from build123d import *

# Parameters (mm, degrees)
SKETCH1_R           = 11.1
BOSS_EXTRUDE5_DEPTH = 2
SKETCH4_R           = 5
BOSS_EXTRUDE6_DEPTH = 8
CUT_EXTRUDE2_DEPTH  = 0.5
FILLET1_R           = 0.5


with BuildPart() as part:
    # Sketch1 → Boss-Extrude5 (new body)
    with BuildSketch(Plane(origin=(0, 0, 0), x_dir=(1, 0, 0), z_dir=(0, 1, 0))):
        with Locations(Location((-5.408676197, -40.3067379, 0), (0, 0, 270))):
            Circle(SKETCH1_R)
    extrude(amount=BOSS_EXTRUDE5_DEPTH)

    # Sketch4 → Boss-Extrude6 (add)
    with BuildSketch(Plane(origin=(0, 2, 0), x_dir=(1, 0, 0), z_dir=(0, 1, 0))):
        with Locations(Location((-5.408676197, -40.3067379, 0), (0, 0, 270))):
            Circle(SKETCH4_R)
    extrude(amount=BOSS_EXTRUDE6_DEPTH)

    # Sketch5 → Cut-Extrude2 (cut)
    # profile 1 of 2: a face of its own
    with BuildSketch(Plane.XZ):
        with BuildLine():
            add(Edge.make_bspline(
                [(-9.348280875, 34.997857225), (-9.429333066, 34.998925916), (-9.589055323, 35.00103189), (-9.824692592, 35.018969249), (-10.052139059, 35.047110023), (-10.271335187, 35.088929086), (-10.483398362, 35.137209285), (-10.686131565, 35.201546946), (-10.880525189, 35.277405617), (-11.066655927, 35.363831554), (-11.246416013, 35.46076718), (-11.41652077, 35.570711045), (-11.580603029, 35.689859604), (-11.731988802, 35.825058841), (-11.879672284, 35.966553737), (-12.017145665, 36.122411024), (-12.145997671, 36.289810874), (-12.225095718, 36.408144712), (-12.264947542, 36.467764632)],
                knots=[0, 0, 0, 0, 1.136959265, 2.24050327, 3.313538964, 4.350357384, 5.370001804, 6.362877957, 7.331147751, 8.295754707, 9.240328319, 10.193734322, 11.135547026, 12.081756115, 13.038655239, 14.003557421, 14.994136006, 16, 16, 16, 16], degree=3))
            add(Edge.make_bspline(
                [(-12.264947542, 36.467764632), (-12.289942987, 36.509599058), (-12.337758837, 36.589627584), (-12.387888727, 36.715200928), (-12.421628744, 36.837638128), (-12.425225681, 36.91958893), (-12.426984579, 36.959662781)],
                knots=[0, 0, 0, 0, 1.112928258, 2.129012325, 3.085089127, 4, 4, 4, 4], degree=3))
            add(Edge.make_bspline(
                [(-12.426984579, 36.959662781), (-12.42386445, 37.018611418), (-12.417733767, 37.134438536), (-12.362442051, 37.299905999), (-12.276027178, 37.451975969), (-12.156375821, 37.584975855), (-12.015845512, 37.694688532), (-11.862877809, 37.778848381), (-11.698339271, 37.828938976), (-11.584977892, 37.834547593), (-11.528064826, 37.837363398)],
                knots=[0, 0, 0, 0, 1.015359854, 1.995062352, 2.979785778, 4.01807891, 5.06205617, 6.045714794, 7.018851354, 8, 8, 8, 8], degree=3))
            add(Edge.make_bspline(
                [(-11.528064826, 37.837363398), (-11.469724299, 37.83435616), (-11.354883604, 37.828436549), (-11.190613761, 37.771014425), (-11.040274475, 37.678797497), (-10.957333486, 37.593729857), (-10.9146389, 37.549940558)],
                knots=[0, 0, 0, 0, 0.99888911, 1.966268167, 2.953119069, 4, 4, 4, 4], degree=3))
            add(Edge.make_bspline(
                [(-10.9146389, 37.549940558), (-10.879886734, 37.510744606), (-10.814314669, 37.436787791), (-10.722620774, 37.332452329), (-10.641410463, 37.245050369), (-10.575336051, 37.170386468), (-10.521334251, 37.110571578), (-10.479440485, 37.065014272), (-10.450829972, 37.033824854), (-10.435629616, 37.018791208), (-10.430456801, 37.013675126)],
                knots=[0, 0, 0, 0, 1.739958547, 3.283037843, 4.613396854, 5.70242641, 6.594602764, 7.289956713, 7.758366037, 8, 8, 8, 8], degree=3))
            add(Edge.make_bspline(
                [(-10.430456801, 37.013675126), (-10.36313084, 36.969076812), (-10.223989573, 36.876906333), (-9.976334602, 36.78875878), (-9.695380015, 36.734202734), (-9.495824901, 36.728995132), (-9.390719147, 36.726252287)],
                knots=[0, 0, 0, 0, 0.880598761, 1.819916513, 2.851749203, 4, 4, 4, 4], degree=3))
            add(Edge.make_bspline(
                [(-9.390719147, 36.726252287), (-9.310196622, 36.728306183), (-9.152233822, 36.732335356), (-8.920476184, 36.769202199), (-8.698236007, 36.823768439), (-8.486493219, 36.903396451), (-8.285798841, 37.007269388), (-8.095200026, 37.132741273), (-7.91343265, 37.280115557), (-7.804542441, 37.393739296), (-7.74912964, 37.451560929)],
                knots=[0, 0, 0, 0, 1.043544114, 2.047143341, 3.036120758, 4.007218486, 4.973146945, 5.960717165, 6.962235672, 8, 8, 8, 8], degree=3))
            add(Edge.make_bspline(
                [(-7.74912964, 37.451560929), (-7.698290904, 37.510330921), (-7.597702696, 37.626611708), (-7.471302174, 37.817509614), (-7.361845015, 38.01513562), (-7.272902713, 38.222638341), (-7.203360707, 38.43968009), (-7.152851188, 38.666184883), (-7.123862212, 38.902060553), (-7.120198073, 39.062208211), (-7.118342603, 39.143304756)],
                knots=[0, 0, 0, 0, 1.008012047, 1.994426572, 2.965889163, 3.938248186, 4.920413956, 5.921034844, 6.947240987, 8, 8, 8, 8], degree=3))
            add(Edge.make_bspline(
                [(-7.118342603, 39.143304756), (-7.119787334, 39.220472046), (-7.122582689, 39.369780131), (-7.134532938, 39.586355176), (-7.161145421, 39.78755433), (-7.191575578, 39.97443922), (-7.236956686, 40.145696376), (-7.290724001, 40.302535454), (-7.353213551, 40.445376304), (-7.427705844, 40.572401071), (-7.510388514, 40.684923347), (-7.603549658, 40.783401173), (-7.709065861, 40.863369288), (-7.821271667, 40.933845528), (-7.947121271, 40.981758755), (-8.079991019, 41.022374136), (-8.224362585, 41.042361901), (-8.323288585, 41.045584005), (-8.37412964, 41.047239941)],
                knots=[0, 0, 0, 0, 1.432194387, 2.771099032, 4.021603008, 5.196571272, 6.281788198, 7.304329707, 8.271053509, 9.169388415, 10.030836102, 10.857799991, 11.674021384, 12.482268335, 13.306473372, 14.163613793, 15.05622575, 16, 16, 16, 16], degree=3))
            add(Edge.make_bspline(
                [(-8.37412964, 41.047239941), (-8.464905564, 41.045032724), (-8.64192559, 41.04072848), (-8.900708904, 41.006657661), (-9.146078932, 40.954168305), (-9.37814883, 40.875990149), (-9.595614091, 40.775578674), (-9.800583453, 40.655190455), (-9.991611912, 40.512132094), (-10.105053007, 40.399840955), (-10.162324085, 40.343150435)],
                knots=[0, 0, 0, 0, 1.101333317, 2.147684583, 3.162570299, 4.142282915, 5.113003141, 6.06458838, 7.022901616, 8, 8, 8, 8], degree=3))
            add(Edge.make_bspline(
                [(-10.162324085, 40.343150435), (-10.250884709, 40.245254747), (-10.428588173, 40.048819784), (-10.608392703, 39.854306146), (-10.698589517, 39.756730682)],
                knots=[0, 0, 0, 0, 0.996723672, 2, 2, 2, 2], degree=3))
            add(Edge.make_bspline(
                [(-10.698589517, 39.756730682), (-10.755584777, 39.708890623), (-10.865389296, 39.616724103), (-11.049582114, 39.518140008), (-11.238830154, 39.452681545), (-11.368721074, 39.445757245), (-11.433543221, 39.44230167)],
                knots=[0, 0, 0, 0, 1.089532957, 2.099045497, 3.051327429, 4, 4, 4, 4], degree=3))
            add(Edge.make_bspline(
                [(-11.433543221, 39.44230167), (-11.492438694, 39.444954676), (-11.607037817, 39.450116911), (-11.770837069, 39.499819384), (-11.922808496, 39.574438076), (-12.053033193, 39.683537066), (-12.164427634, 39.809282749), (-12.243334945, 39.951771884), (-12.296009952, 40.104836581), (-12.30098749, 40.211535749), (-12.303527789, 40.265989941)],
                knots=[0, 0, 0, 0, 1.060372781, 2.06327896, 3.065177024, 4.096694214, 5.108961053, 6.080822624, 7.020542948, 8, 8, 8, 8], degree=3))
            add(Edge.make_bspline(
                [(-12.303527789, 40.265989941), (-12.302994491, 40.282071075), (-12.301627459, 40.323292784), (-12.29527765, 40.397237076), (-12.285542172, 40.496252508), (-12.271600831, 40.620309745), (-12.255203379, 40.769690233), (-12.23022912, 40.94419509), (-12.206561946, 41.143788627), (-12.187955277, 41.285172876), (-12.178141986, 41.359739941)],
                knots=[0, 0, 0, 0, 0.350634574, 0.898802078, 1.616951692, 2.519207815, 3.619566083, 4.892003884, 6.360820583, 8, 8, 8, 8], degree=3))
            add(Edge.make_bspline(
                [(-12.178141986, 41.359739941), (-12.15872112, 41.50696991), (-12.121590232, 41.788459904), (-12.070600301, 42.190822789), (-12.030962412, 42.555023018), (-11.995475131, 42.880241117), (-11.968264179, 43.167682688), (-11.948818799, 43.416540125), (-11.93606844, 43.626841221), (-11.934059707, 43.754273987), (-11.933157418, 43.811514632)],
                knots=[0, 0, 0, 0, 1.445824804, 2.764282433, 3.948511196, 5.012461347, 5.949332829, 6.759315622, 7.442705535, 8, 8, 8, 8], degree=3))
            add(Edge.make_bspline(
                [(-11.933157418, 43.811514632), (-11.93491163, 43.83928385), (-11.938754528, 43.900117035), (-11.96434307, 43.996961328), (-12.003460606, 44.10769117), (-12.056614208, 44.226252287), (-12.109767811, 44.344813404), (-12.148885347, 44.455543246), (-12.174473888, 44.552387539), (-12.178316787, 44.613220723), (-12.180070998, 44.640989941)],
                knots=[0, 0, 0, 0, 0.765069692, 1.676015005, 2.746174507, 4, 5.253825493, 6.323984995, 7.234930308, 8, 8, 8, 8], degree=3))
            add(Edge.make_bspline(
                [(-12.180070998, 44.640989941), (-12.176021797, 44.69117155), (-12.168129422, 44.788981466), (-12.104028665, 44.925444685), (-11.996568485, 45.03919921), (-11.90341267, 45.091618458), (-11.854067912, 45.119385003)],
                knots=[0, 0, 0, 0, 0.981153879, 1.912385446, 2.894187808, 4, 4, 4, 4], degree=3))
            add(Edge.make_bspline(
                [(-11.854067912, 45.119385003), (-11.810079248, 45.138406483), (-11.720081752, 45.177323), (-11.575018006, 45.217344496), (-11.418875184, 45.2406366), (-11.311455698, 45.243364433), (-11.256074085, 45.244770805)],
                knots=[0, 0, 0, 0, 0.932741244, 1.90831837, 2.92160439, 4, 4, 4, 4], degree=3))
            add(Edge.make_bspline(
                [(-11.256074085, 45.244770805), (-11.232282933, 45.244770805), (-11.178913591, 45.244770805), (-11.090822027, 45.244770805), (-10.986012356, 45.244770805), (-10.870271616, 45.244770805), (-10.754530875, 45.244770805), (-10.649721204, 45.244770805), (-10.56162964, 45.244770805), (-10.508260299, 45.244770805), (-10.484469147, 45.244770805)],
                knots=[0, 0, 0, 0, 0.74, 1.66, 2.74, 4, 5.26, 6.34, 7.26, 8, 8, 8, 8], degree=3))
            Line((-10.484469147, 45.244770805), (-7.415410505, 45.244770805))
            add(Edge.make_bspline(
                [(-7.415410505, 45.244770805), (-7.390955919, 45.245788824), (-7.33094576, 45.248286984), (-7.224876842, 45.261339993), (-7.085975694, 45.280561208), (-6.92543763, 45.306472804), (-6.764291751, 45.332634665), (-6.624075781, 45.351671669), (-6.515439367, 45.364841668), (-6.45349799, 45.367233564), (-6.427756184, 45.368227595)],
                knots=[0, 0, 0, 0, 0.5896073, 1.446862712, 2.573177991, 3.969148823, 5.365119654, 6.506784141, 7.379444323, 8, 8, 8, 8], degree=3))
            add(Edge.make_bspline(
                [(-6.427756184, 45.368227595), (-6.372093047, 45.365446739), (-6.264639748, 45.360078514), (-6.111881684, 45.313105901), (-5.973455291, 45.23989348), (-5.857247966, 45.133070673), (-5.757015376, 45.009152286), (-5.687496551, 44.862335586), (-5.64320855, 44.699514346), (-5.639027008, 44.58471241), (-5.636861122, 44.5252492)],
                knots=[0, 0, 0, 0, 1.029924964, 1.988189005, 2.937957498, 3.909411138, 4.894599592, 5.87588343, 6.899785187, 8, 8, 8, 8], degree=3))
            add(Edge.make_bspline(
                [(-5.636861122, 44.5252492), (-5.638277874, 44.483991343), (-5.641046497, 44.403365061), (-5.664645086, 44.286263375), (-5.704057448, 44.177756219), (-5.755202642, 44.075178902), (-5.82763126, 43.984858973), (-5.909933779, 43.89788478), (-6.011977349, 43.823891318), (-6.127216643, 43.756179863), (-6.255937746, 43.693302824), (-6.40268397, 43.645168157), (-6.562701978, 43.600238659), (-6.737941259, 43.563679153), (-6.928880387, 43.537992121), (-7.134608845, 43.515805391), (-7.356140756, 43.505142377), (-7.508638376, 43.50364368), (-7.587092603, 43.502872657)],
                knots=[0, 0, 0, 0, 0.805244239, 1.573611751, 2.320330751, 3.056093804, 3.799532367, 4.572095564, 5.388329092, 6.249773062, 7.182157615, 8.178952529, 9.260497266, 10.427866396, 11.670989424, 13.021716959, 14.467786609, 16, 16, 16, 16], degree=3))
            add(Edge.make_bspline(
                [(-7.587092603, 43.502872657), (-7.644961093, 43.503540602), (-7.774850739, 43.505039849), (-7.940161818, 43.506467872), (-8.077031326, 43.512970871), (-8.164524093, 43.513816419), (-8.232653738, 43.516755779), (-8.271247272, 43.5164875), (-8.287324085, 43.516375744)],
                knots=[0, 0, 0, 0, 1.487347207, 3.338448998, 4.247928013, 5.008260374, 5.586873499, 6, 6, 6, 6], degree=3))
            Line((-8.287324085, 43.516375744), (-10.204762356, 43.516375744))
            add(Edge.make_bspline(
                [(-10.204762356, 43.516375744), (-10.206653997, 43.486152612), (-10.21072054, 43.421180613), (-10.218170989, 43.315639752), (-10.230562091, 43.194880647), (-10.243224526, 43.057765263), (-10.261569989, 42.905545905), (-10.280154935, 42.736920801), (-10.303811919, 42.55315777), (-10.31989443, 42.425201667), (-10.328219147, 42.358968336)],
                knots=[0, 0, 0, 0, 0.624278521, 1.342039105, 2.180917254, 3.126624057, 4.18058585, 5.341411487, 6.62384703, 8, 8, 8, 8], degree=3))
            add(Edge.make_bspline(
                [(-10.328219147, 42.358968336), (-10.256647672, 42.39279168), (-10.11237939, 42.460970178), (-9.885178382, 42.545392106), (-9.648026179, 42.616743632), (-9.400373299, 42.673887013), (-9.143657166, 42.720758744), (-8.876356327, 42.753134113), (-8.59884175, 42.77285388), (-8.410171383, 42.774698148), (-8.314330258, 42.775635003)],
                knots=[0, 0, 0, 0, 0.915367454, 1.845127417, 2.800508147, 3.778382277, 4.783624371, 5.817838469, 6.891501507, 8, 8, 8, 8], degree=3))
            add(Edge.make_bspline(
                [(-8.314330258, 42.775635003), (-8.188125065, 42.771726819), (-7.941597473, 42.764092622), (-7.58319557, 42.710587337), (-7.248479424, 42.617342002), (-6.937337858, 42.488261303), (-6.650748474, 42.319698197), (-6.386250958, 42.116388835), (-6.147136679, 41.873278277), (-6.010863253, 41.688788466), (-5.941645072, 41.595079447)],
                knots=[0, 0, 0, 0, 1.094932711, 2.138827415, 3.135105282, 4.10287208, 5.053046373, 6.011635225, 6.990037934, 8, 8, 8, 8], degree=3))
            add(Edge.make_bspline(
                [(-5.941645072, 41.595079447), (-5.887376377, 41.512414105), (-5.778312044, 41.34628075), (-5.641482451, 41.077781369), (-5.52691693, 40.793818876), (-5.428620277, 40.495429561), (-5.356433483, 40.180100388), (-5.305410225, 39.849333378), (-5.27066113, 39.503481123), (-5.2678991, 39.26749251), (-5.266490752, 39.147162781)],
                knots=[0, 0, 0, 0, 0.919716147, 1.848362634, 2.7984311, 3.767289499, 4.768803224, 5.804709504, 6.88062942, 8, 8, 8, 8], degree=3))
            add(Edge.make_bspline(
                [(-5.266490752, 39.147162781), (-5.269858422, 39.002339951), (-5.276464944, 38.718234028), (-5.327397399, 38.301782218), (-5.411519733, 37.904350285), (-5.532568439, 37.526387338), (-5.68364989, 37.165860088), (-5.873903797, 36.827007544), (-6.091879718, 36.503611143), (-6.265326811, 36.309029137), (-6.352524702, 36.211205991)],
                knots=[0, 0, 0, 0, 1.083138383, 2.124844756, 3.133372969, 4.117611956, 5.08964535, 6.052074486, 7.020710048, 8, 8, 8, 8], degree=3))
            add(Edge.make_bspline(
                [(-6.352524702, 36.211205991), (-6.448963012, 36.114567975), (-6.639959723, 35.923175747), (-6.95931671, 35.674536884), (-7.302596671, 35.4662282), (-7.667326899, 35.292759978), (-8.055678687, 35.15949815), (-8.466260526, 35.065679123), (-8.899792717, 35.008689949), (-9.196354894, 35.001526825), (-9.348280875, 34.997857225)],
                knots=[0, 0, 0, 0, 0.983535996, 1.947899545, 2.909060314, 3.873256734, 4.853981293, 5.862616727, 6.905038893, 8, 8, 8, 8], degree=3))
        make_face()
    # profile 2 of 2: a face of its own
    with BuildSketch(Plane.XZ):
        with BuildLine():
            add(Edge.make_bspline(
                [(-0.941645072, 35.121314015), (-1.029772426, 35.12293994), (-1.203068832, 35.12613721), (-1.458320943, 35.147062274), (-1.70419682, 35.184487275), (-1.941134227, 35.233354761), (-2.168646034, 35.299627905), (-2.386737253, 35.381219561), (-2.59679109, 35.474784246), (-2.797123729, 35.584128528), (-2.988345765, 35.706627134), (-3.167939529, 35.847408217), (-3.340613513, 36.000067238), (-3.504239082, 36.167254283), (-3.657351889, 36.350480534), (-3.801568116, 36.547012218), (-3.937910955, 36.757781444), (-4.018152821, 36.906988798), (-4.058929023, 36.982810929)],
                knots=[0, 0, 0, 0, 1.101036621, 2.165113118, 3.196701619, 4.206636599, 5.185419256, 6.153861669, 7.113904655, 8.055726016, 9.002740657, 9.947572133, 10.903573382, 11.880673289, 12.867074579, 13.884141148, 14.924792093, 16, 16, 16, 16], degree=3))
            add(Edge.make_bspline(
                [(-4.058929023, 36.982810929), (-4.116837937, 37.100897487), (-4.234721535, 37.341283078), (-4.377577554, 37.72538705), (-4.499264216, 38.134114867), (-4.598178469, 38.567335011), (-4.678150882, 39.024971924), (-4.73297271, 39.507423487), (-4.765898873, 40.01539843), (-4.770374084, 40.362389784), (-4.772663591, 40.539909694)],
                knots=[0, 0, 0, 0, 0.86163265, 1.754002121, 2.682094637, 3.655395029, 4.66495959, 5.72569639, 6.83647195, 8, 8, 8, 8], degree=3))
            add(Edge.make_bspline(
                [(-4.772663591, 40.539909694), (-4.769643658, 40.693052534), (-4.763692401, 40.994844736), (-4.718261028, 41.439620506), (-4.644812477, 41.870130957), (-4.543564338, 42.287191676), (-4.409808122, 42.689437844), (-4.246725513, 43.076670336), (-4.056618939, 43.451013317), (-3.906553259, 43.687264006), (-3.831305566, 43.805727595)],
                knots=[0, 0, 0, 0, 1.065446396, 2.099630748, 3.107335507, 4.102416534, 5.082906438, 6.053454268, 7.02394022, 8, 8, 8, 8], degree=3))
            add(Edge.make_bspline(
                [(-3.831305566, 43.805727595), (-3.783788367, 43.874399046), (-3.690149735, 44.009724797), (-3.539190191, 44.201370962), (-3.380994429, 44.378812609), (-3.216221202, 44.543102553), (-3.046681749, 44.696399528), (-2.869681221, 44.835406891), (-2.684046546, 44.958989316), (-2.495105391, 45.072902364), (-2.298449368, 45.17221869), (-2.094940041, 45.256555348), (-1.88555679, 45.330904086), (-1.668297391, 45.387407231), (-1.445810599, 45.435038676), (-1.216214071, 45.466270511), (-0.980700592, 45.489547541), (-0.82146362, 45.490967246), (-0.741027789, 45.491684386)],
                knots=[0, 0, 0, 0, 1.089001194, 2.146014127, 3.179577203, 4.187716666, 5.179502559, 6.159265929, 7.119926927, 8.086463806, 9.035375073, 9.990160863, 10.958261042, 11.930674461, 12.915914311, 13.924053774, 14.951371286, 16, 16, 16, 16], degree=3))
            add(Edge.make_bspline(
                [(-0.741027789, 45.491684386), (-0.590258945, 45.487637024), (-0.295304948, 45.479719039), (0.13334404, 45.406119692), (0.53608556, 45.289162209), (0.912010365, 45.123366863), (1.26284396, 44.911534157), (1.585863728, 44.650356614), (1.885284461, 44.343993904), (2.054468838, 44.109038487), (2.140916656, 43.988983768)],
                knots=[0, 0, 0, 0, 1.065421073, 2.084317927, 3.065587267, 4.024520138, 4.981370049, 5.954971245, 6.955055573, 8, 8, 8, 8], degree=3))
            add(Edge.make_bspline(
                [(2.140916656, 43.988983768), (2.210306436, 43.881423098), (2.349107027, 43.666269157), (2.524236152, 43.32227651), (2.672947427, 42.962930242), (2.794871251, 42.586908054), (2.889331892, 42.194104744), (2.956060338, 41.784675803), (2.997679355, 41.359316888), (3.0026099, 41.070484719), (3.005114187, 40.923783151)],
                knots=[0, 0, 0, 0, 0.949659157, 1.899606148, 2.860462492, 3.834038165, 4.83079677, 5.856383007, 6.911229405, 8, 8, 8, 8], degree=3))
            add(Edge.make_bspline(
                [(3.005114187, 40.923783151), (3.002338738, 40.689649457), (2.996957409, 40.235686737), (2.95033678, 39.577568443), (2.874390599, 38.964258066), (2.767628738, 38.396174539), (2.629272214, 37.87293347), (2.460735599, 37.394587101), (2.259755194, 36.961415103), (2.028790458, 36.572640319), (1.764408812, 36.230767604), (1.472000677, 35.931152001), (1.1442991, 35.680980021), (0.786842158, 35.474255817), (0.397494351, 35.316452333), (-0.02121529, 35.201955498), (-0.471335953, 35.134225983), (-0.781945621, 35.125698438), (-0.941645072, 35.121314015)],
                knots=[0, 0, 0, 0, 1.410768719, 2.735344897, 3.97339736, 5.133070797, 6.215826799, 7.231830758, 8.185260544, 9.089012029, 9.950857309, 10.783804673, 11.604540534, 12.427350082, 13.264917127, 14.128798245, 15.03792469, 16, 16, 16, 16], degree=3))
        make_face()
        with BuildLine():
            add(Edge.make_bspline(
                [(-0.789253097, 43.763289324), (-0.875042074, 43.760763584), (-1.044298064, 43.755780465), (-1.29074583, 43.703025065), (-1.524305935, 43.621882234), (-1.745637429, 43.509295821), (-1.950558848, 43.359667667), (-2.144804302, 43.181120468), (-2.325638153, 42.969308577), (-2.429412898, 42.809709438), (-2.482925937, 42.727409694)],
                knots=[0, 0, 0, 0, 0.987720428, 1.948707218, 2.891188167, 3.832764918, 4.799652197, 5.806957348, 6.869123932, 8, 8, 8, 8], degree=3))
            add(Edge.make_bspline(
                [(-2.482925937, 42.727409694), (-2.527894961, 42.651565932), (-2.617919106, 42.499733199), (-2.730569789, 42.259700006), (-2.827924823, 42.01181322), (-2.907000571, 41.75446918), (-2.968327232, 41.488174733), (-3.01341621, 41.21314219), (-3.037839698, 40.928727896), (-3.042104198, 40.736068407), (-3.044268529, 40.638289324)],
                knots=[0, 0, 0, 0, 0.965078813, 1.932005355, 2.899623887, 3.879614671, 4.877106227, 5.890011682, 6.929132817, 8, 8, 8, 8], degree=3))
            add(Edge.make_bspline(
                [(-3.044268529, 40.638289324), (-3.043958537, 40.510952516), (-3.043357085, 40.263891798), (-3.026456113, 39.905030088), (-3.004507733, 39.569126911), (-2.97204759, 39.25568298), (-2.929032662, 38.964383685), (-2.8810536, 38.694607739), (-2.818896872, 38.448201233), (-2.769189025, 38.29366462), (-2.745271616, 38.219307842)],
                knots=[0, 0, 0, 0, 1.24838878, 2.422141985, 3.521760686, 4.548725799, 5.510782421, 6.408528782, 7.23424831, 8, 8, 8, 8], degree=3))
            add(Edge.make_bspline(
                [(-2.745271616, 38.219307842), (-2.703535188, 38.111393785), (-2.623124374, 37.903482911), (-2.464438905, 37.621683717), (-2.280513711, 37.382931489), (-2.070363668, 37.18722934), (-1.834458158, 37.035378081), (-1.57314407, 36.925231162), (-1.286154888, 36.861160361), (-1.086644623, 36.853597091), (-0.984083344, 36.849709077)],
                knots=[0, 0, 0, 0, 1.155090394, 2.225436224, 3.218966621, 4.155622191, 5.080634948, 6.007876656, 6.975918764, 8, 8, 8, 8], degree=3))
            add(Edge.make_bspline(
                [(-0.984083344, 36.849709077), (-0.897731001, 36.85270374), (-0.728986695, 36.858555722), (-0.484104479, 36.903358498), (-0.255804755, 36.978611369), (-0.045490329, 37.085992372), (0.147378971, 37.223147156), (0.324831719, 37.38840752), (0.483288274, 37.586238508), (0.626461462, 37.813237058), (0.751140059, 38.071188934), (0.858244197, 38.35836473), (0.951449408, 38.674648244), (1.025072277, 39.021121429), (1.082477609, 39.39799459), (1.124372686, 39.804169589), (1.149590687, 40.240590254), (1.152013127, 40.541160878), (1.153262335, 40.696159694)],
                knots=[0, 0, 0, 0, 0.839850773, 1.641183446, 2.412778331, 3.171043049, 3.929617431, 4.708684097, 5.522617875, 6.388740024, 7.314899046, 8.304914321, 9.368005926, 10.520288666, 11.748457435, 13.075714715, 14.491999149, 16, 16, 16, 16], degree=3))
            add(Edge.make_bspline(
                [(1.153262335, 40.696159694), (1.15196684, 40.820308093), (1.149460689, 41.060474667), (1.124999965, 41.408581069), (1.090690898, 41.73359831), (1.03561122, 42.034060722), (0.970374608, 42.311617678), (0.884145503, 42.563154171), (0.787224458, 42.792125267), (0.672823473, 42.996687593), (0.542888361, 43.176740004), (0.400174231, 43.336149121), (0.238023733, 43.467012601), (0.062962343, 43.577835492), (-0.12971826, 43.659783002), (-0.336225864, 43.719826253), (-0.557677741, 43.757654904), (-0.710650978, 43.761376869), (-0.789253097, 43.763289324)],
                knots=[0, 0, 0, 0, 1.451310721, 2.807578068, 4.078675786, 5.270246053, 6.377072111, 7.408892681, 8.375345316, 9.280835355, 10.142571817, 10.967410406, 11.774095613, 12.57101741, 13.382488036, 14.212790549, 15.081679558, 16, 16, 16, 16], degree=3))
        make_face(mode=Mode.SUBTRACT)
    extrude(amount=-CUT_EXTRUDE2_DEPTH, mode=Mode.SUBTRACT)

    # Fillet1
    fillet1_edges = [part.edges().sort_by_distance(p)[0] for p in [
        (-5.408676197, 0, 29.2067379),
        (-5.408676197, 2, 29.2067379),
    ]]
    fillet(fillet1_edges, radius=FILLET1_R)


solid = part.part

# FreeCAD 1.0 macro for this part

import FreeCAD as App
import Part
import Sketcher
from FreeCAD import Vector
Q = App.Units.Quantity


def edges_at(feature, points):
    """Names of the edges that pass closest to the given points."""
    edges = feature.Shape.Edges
    near = lambda p: min(range(len(edges)), key=lambda i: edges[i].distToShape(Part.Vertex(*p))[0])
    return sorted({f"Edge{near(p) + 1}" for p in points})

doc = App.newDocument("Part")
body = doc.addObject("PartDesign::Body", "Body")

# Sketch on XZ plane
sketch1 = body.newObject("Sketcher::SketchObject", "Sketch")
sketch1.AttachmentSupport = (doc.getObject("XZ_Plane"), [""])
sketch1.MapMode = "FlatFace"
sketch1.addGeometry(Part.Circle(Vector(-5, 40, 0), Vector(0, 0, 1), 11), False)
sketch1.addConstraint([
    Sketcher.Constraint("Diameter", 0, Q("22.2 mm")),
    Sketcher.Constraint("DistanceX", 0, 3, -1, 1, Q("5.408676 mm")),
    Sketcher.Constraint("DistanceY", -1, 1, 0, 3, Q("40.306738 mm")),
])
pad1 = body.newObject("PartDesign::Pad", "Pad")
pad1.Profile = sketch1
pad1.Length = 2
pad1.Reversed = True

# Sketch on XZ plane
sketch2 = body.newObject("Sketcher::SketchObject", "Sketch001")
sketch2.AttachmentSupport = (doc.getObject("XZ_Plane"), [""])
sketch2.MapMode = "FlatFace"
sketch2.AttachmentOffset = App.Placement(Vector(0, 0, -2), App.Rotation())
sketch2.addGeometry(Part.Circle(Vector(-5, 40, 0), Vector(0, 0, 1), 5), False)
sketch2.addConstraint([
    Sketcher.Constraint("Diameter", 0, Q("10 mm")),
    Sketcher.Constraint("DistanceX", 0, 3, -1, 1, Q("5.408676 mm")),
    Sketcher.Constraint("DistanceY", -1, 1, 0, 3, Q("40.306738 mm")),
])
pad2 = body.newObject("PartDesign::Pad", "Pad001")
pad2.Profile = sketch2
pad2.Length = 8
pad2.Reversed = True

# Sketch on XZ plane
sketch3 = body.newObject("Sketcher::SketchObject", "Sketch002")
sketch3.AttachmentSupport = (doc.getObject("XZ_Plane"), [""])
sketch3.MapMode = "FlatFace"
sketch3.addGeometry([
    Part.BSplineCurve([Vector(-9.348281, 34.997857, 0), Vector(-9.429333, 34.998926, 0), Vector(-9.589055, 35.001032, 0), Vector(-9.824693, 35.018969, 0), Vector(-10.052139, 35.04711, 0), Vector(-10.271335, 35.088929, 0), Vector(-10.483398, 35.137209, 0), Vector(-10.686132, 35.201547, 0), Vector(-10.880525, 35.277406, 0), Vector(-11.066656, 35.363832, 0), Vector(-11.246416, 35.460767, 0), Vector(-11.416521, 35.570711, 0), Vector(-11.580603, 35.68986, 0), Vector(-11.731989, 35.825059, 0), Vector(-11.879672, 35.966554, 0), Vector(-12.017146, 36.122411, 0), Vector(-12.145998, 36.289811, 0), Vector(-12.225096, 36.408145, 0), Vector(-12.264948, 36.467765, 0)], [4, 1, 1, 1, 1, 1, 1, 1, 1, 1, 1, 1, 1, 1, 1, 1, 4], [0, 1.136959265, 2.24050327, 3.313538964, 4.350357384, 5.370001804, 6.362877957, 7.331147751, 8.295754707, 9.240328319, 10.193734322, 11.135547026, 12.081756115, 13.038655239, 14.003557421, 14.994136006, 16], False, 3, [1, 1, 1, 1, 1, 1, 1, 1, 1, 1, 1, 1, 1, 1, 1, 1, 1, 1, 1], False),  # 0
    Part.BSplineCurve([Vector(-6.352525, 36.211206, 0), Vector(-6.448963, 36.114568, 0), Vector(-6.63996, 35.923176, 0), Vector(-6.959317, 35.674537, 0), Vector(-7.302597, 35.466228, 0), Vector(-7.667327, 35.29276, 0), Vector(-8.055679, 35.159498, 0), Vector(-8.466261, 35.065679, 0), Vector(-8.899793, 35.00869, 0), Vector(-9.196355, 35.001527, 0), Vector(-9.348281, 34.997857, 0)], [4, 1, 1, 1, 1, 1, 1, 1, 4], [0, 0.983535996, 1.947899545, 2.909060314, 3.873256734, 4.853981293, 5.862616727, 6.905038893, 8], False, 3, [1, 1, 1, 1, 1, 1, 1, 1, 1, 1, 1], False),  # 1
    Part.BSplineCurve([Vector(-5.266491, 39.147163, 0), Vector(-5.269858, 39.00234, 0), Vector(-5.276465, 38.718234, 0), Vector(-5.327397, 38.301782, 0), Vector(-5.41152, 37.90435, 0), Vector(-5.532568, 37.526387, 0), Vector(-5.68365, 37.16586, 0), Vector(-5.873904, 36.827008, 0), Vector(-6.09188, 36.503611, 0), Vector(-6.265327, 36.309029, 0), Vector(-6.352525, 36.211206, 0)], [4, 1, 1, 1, 1, 1, 1, 1, 4], [0, 1.083138383, 2.124844756, 3.133372969, 4.117611956, 5.08964535, 6.052074486, 7.020710048, 8], False, 3, [1, 1, 1, 1, 1, 1, 1, 1, 1, 1, 1], False),  # 2
    Part.BSplineCurve([Vector(-5.941645, 41.595079, 0), Vector(-5.887376, 41.512414, 0), Vector(-5.778312, 41.346281, 0), Vector(-5.641482, 41.077781, 0), Vector(-5.526917, 40.793819, 0), Vector(-5.42862, 40.49543, 0), Vector(-5.356433, 40.1801, 0), Vector(-5.30541, 39.849333, 0), Vector(-5.270661, 39.503481, 0), Vector(-5.267899, 39.267493, 0), Vector(-5.266491, 39.147163, 0)], [4, 1, 1, 1, 1, 1, 1, 1, 4], [0, 0.919716147, 1.848362634, 2.7984311, 3.767289499, 4.768803224, 5.804709504, 6.88062942, 8], False, 3, [1, 1, 1, 1, 1, 1, 1, 1, 1, 1, 1], False),  # 3
    Part.BSplineCurve([Vector(-8.31433, 42.775635, 0), Vector(-8.188125, 42.771727, 0), Vector(-7.941597, 42.764093, 0), Vector(-7.583196, 42.710587, 0), Vector(-7.248479, 42.617342, 0), Vector(-6.937338, 42.488261, 0), Vector(-6.650748, 42.319698, 0), Vector(-6.386251, 42.116389, 0), Vector(-6.147137, 41.873278, 0), Vector(-6.010863, 41.688788, 0), Vector(-5.941645, 41.595079, 0)], [4, 1, 1, 1, 1, 1, 1, 1, 4], [0, 1.094932711, 2.138827415, 3.135105282, 4.10287208, 5.053046373, 6.011635225, 6.990037934, 8], False, 3, [1, 1, 1, 1, 1, 1, 1, 1, 1, 1, 1], False),  # 4
    Part.BSplineCurve([Vector(-10.328219, 42.358968, 0), Vector(-10.256648, 42.392792, 0), Vector(-10.112379, 42.46097, 0), Vector(-9.885178, 42.545392, 0), Vector(-9.648026, 42.616744, 0), Vector(-9.400373, 42.673887, 0), Vector(-9.143657, 42.720759, 0), Vector(-8.876356, 42.753134, 0), Vector(-8.598842, 42.772854, 0), Vector(-8.410171, 42.774698, 0), Vector(-8.31433, 42.775635, 0)], [4, 1, 1, 1, 1, 1, 1, 1, 4], [0, 0.915367454, 1.845127417, 2.800508147, 3.778382277, 4.783624371, 5.817838469, 6.891501507, 8], False, 3, [1, 1, 1, 1, 1, 1, 1, 1, 1, 1, 1], False),  # 5
    Part.BSplineCurve([Vector(-10.204762, 43.516376, 0), Vector(-10.206654, 43.486153, 0), Vector(-10.210721, 43.421181, 0), Vector(-10.218171, 43.31564, 0), Vector(-10.230562, 43.194881, 0), Vector(-10.243225, 43.057765, 0), Vector(-10.26157, 42.905546, 0), Vector(-10.280155, 42.736921, 0), Vector(-10.303812, 42.553158, 0), Vector(-10.319894, 42.425202, 0), Vector(-10.328219, 42.358968, 0)], [4, 1, 1, 1, 1, 1, 1, 1, 4], [0, 0.624278521, 1.342039105, 2.180917254, 3.126624057, 4.18058585, 5.341411487, 6.62384703, 8], False, 3, [1, 1, 1, 1, 1, 1, 1, 1, 1, 1, 1], False),  # 6
    Part.LineSegment(Vector(-10.204762, 43.516376, 0), Vector(-8.287324, 43.516376, 0)),  # 7
    Part.BSplineCurve([Vector(-7.587093, 43.502873, 0), Vector(-7.644961, 43.503541, 0), Vector(-7.774851, 43.50504, 0), Vector(-7.940162, 43.506468, 0), Vector(-8.077031, 43.512971, 0), Vector(-8.164524, 43.513816, 0), Vector(-8.232654, 43.516756, 0), Vector(-8.271247, 43.516487, 0), Vector(-8.287324, 43.516376, 0)], [4, 1, 1, 1, 1, 1, 4], [0, 1.487347207, 3.338448998, 4.247928013, 5.008260374, 5.586873499, 6], False, 3, [1, 1, 1, 1, 1, 1, 1, 1, 1], False),  # 8
    Part.BSplineCurve([Vector(-5.636861, 44.525249, 0), Vector(-5.638278, 44.483991, 0), Vector(-5.641046, 44.403365, 0), Vector(-5.664645, 44.286263, 0), Vector(-5.704057, 44.177756, 0), Vector(-5.755203, 44.075179, 0), Vector(-5.827631, 43.984859, 0), Vector(-5.909934, 43.897885, 0), Vector(-6.011977, 43.823891, 0), Vector(-6.127217, 43.75618, 0), Vector(-6.255938, 43.693303, 0), Vector(-6.402684, 43.645168, 0), Vector(-6.562702, 43.600239, 0), Vector(-6.737941, 43.563679, 0), Vector(-6.92888, 43.537992, 0), Vector(-7.134609, 43.515805, 0), Vector(-7.356141, 43.505142, 0), Vector(-7.508638, 43.503644, 0), Vector(-7.587093, 43.502873, 0)], [4, 1, 1, 1, 1, 1, 1, 1, 1, 1, 1, 1, 1, 1, 1, 1, 4], [0, 0.805244239, 1.573611751, 2.320330751, 3.056093804, 3.799532367, 4.572095564, 5.388329092, 6.249773062, 7.182157615, 8.178952529, 9.260497266, 10.427866396, 11.670989424, 13.021716959, 14.467786609, 16], False, 3, [1, 1, 1, 1, 1, 1, 1, 1, 1, 1, 1, 1, 1, 1, 1, 1, 1, 1, 1], False),  # 9
    Part.BSplineCurve([Vector(-6.427756, 45.368228, 0), Vector(-6.372093, 45.365447, 0), Vector(-6.26464, 45.360079, 0), Vector(-6.111882, 45.313106, 0), Vector(-5.973455, 45.239893, 0), Vector(-5.857248, 45.133071, 0), Vector(-5.757015, 45.009152, 0), Vector(-5.687497, 44.862336, 0), Vector(-5.643209, 44.699514, 0), Vector(-5.639027, 44.584712, 0), Vector(-5.636861, 44.525249, 0)], [4, 1, 1, 1, 1, 1, 1, 1, 4], [0, 1.029924964, 1.988189005, 2.937957498, 3.909411138, 4.894599592, 5.87588343, 6.899785187, 8], False, 3, [1, 1, 1, 1, 1, 1, 1, 1, 1, 1, 1], False),  # 10
    Part.BSplineCurve([Vector(-7.415411, 45.244771, 0), Vector(-7.390956, 45.245789, 0), Vector(-7.330946, 45.248287, 0), Vector(-7.224877, 45.26134, 0), Vector(-7.085976, 45.280561, 0), Vector(-6.925438, 45.306473, 0), Vector(-6.764292, 45.332635, 0), Vector(-6.624076, 45.351672, 0), Vector(-6.515439, 45.364842, 0), Vector(-6.453498, 45.367234, 0), Vector(-6.427756, 45.368228, 0)], [4, 1, 1, 1, 1, 1, 1, 1, 4], [0, 0.5896073, 1.446862712, 2.573177991, 3.969148823, 5.365119654, 6.506784141, 7.379444323, 8], False, 3, [1, 1, 1, 1, 1, 1, 1, 1, 1, 1, 1], False),  # 11
    Part.LineSegment(Vector(-7.415411, 45.244771, 0), Vector(-10.484469, 45.244771, 0)),  # 12
    Part.BSplineCurve([Vector(-11.256074, 45.244771, 0), Vector(-11.232283, 45.244771, 0), Vector(-11.178914, 45.244771, 0), Vector(-11.090822, 45.244771, 0), Vector(-10.986012, 45.244771, 0), Vector(-10.870272, 45.244771, 0), Vector(-10.754531, 45.244771, 0), Vector(-10.649721, 45.244771, 0), Vector(-10.56163, 45.244771, 0), Vector(-10.50826, 45.244771, 0), Vector(-10.484469, 45.244771, 0)], [4, 1, 1, 1, 1, 1, 1, 1, 4], [0, 0.74, 1.66, 2.74, 4, 5.26, 6.34, 7.26, 8], False, 3, [1, 1, 1, 1, 1, 1, 1, 1, 1, 1, 1], False),  # 13
    Part.BSplineCurve([Vector(-11.854068, 45.119385, 0), Vector(-11.810079, 45.138406, 0), Vector(-11.720082, 45.177323, 0), Vector(-11.575018, 45.217344, 0), Vector(-11.418875, 45.240637, 0), Vector(-11.311456, 45.243364, 0), Vector(-11.256074, 45.244771, 0)], [4, 1, 1, 1, 4], [0, 0.932741244, 1.90831837, 2.92160439, 4], False, 3, [1, 1, 1, 1, 1, 1, 1], False),  # 14
    Part.BSplineCurve([Vector(-12.180071, 44.64099, 0), Vector(-12.176022, 44.691172, 0), Vector(-12.168129, 44.788981, 0), Vector(-12.104029, 44.925445, 0), Vector(-11.996568, 45.039199, 0), Vector(-11.903413, 45.091618, 0), Vector(-11.854068, 45.119385, 0)], [4, 1, 1, 1, 4], [0, 0.981153879, 1.912385446, 2.894187808, 4], False, 3, [1, 1, 1, 1, 1, 1, 1], False),  # 15
    Part.BSplineCurve([Vector(-11.933157, 43.811515, 0), Vector(-11.934912, 43.839284, 0), Vector(-11.938755, 43.900117, 0), Vector(-11.964343, 43.996961, 0), Vector(-12.003461, 44.107691, 0), Vector(-12.056614, 44.226252, 0), Vector(-12.109768, 44.344813, 0), Vector(-12.148885, 44.455543, 0), Vector(-12.174474, 44.552388, 0), Vector(-12.178317, 44.613221, 0), Vector(-12.180071, 44.64099, 0)], [4, 1, 1, 1, 1, 1, 1, 1, 4], [0, 0.765069692, 1.676015005, 2.746174507, 4, 5.253825493, 6.323984995, 7.234930308, 8], False, 3, [1, 1, 1, 1, 1, 1, 1, 1, 1, 1, 1], False),  # 16
    Part.BSplineCurve([Vector(-12.178142, 41.35974, 0), Vector(-12.158721, 41.50697, 0), Vector(-12.12159, 41.78846, 0), Vector(-12.0706, 42.190823, 0), Vector(-12.030962, 42.555023, 0), Vector(-11.995475, 42.880241, 0), Vector(-11.968264, 43.167683, 0), Vector(-11.948819, 43.41654, 0), Vector(-11.936068, 43.626841, 0), Vector(-11.93406, 43.754274, 0), Vector(-11.933157, 43.811515, 0)], [4, 1, 1, 1, 1, 1, 1, 1, 4], [0, 1.445824804, 2.764282433, 3.948511196, 5.012461347, 5.949332829, 6.759315622, 7.442705535, 8], False, 3, [1, 1, 1, 1, 1, 1, 1, 1, 1, 1, 1], False),  # 17
    Part.BSplineCurve([Vector(-12.303528, 40.26599, 0), Vector(-12.302994, 40.282071, 0), Vector(-12.301627, 40.323293, 0), Vector(-12.295278, 40.397237, 0), Vector(-12.285542, 40.496253, 0), Vector(-12.271601, 40.62031, 0), Vector(-12.255203, 40.76969, 0), Vector(-12.230229, 40.944195, 0), Vector(-12.206562, 41.143789, 0), Vector(-12.187955, 41.285173, 0), Vector(-12.178142, 41.35974, 0)], [4, 1, 1, 1, 1, 1, 1, 1, 4], [0, 0.350634574, 0.898802078, 1.616951692, 2.519207815, 3.619566083, 4.892003884, 6.360820583, 8], False, 3, [1, 1, 1, 1, 1, 1, 1, 1, 1, 1, 1], False),  # 18
    Part.BSplineCurve([Vector(-11.433543, 39.442302, 0), Vector(-11.492439, 39.444955, 0), Vector(-11.607038, 39.450117, 0), Vector(-11.770837, 39.499819, 0), Vector(-11.922808, 39.574438, 0), Vector(-12.053033, 39.683537, 0), Vector(-12.164428, 39.809283, 0), Vector(-12.243335, 39.951772, 0), Vector(-12.29601, 40.104837, 0), Vector(-12.300987, 40.211536, 0), Vector(-12.303528, 40.26599, 0)], [4, 1, 1, 1, 1, 1, 1, 1, 4], [0, 1.060372781, 2.06327896, 3.065177024, 4.096694214, 5.108961053, 6.080822624, 7.020542948, 8], False, 3, [1, 1, 1, 1, 1, 1, 1, 1, 1, 1, 1], False),  # 19
    Part.BSplineCurve([Vector(-10.69859, 39.756731, 0), Vector(-10.755585, 39.708891, 0), Vector(-10.865389, 39.616724, 0), Vector(-11.049582, 39.51814, 0), Vector(-11.23883, 39.452682, 0), Vector(-11.368721, 39.445757, 0), Vector(-11.433543, 39.442302, 0)], [4, 1, 1, 1, 4], [0, 1.089532957, 2.099045497, 3.051327429, 4], False, 3, [1, 1, 1, 1, 1, 1, 1], False),  # 20
    Part.BSplineCurve([Vector(-10.162324, 40.34315, 0), Vector(-10.250885, 40.245255, 0), Vector(-10.428588, 40.04882, 0), Vector(-10.608393, 39.854306, 0), Vector(-10.69859, 39.756731, 0)], [4, 1, 4], [0, 0.996723672, 2], False, 3, [1, 1, 1, 1, 1], False),  # 21
    Part.BSplineCurve([Vector(-8.37413, 41.04724, 0), Vector(-8.464906, 41.045033, 0), Vector(-8.641926, 41.040728, 0), Vector(-8.900709, 41.006658, 0), Vector(-9.146079, 40.954168, 0), Vector(-9.378149, 40.87599, 0), Vector(-9.595614, 40.775579, 0), Vector(-9.800583, 40.65519, 0), Vector(-9.991612, 40.512132, 0), Vector(-10.105053, 40.399841, 0), Vector(-10.162324, 40.34315, 0)], [4, 1, 1, 1, 1, 1, 1, 1, 4], [0, 1.101333317, 2.147684583, 3.162570299, 4.142282915, 5.113003141, 6.06458838, 7.022901616, 8], False, 3, [1, 1, 1, 1, 1, 1, 1, 1, 1, 1, 1], False),  # 22
    Part.BSplineCurve([Vector(-7.118343, 39.143305, 0), Vector(-7.119787, 39.220472, 0), Vector(-7.122583, 39.36978, 0), Vector(-7.134533, 39.586355, 0), Vector(-7.161145, 39.787554, 0), Vector(-7.191576, 39.974439, 0), Vector(-7.236957, 40.145696, 0), Vector(-7.290724, 40.302535, 0), Vector(-7.353214, 40.445376, 0), Vector(-7.427706, 40.572401, 0), Vector(-7.510389, 40.684923, 0), Vector(-7.60355, 40.783401, 0), Vector(-7.709066, 40.863369, 0), Vector(-7.821272, 40.933846, 0), Vector(-7.947121, 40.981759, 0), Vector(-8.079991, 41.022374, 0), Vector(-8.224363, 41.042362, 0), Vector(-8.323289, 41.045584, 0), Vector(-8.37413, 41.04724, 0)], [4, 1, 1, 1, 1, 1, 1, 1, 1, 1, 1, 1, 1, 1, 1, 1, 4], [0, 1.432194387, 2.771099032, 4.021603008, 5.196571272, 6.281788198, 7.304329707, 8.271053509, 9.169388415, 10.030836102, 10.857799991, 11.674021384, 12.482268335, 13.306473372, 14.163613793, 15.05622575, 16], False, 3, [1, 1, 1, 1, 1, 1, 1, 1, 1, 1, 1, 1, 1, 1, 1, 1, 1, 1, 1], False),  # 23
    Part.BSplineCurve([Vector(-7.74913, 37.451561, 0), Vector(-7.698291, 37.510331, 0), Vector(-7.597703, 37.626612, 0), Vector(-7.471302, 37.81751, 0), Vector(-7.361845, 38.015136, 0), Vector(-7.272903, 38.222638, 0), Vector(-7.203361, 38.43968, 0), Vector(-7.152851, 38.666185, 0), Vector(-7.123862, 38.902061, 0), Vector(-7.120198, 39.062208, 0), Vector(-7.118343, 39.143305, 0)], [4, 1, 1, 1, 1, 1, 1, 1, 4], [0, 1.008012047, 1.994426572, 2.965889163, 3.938248186, 4.920413956, 5.921034844, 6.947240987, 8], False, 3, [1, 1, 1, 1, 1, 1, 1, 1, 1, 1, 1], False),  # 24
    Part.BSplineCurve([Vector(-9.390719, 36.726252, 0), Vector(-9.310197, 36.728306, 0), Vector(-9.152234, 36.732335, 0), Vector(-8.920476, 36.769202, 0), Vector(-8.698236, 36.823768, 0), Vector(-8.486493, 36.903396, 0), Vector(-8.285799, 37.007269, 0), Vector(-8.0952, 37.132741, 0), Vector(-7.913433, 37.280116, 0), Vector(-7.804542, 37.393739, 0), Vector(-7.74913, 37.451561, 0)], [4, 1, 1, 1, 1, 1, 1, 1, 4], [0, 1.043544114, 2.047143341, 3.036120758, 4.007218486, 4.973146945, 5.960717165, 6.962235672, 8], False, 3, [1, 1, 1, 1, 1, 1, 1, 1, 1, 1, 1], False),  # 25
    Part.BSplineCurve([Vector(-10.430457, 37.013675, 0), Vector(-10.363131, 36.969077, 0), Vector(-10.22399, 36.876906, 0), Vector(-9.976335, 36.788759, 0), Vector(-9.69538, 36.734203, 0), Vector(-9.495825, 36.728995, 0), Vector(-9.390719, 36.726252, 0)], [4, 1, 1, 1, 4], [0, 0.880598761, 1.819916513, 2.851749203, 4], False, 3, [1, 1, 1, 1, 1, 1, 1], False),  # 26
    Part.BSplineCurve([Vector(-10.914639, 37.549941, 0), Vector(-10.879887, 37.510745, 0), Vector(-10.814315, 37.436788, 0), Vector(-10.722621, 37.332452, 0), Vector(-10.64141, 37.24505, 0), Vector(-10.575336, 37.170386, 0), Vector(-10.521334, 37.110572, 0), Vector(-10.47944, 37.065014, 0), Vector(-10.45083, 37.033825, 0), Vector(-10.43563, 37.018791, 0), Vector(-10.430457, 37.013675, 0)], [4, 1, 1, 1, 1, 1, 1, 1, 4], [0, 1.739958547, 3.283037843, 4.613396854, 5.70242641, 6.594602764, 7.289956713, 7.758366037, 8], False, 3, [1, 1, 1, 1, 1, 1, 1, 1, 1, 1, 1], False),  # 27
    Part.BSplineCurve([Vector(-11.528065, 37.837363, 0), Vector(-11.469724, 37.834356, 0), Vector(-11.354884, 37.828437, 0), Vector(-11.190614, 37.771014, 0), Vector(-11.040274, 37.678797, 0), Vector(-10.957333, 37.59373, 0), Vector(-10.914639, 37.549941, 0)], [4, 1, 1, 1, 4], [0, 0.99888911, 1.966268167, 2.953119069, 4], False, 3, [1, 1, 1, 1, 1, 1, 1], False),  # 28
    Part.BSplineCurve([Vector(-12.426985, 36.959663, 0), Vector(-12.423864, 37.018611, 0), Vector(-12.417734, 37.134439, 0), Vector(-12.362442, 37.299906, 0), Vector(-12.276027, 37.451976, 0), Vector(-12.156376, 37.584976, 0), Vector(-12.015846, 37.694689, 0), Vector(-11.862878, 37.778848, 0), Vector(-11.698339, 37.828939, 0), Vector(-11.584978, 37.834548, 0), Vector(-11.528065, 37.837363, 0)], [4, 1, 1, 1, 1, 1, 1, 1, 4], [0, 1.015359854, 1.995062352, 2.979785778, 4.01807891, 5.06205617, 6.045714794, 7.018851354, 8], False, 3, [1, 1, 1, 1, 1, 1, 1, 1, 1, 1, 1], False),  # 29
    Part.BSplineCurve([Vector(-12.264948, 36.467765, 0), Vector(-12.289943, 36.509599, 0), Vector(-12.337759, 36.589628, 0), Vector(-12.387889, 36.715201, 0), Vector(-12.421629, 36.837638, 0), Vector(-12.425226, 36.919589, 0), Vector(-12.426985, 36.959663, 0)], [4, 1, 1, 1, 4], [0, 1.112928258, 2.129012325, 3.085089127, 4], False, 3, [1, 1, 1, 1, 1, 1, 1], False),  # 30
    Part.BSplineCurve([Vector(-0.941645, 35.121314, 0), Vector(-1.029772, 35.12294, 0), Vector(-1.203069, 35.126137, 0), Vector(-1.458321, 35.147062, 0), Vector(-1.704197, 35.184487, 0), Vector(-1.941134, 35.233355, 0), Vector(-2.168646, 35.299628, 0), Vector(-2.386737, 35.38122, 0), Vector(-2.596791, 35.474784, 0), Vector(-2.797124, 35.584129, 0), Vector(-2.988346, 35.706627, 0), Vector(-3.16794, 35.847408, 0), Vector(-3.340614, 36.000067, 0), Vector(-3.504239, 36.167254, 0), Vector(-3.657352, 36.350481, 0), Vector(-3.801568, 36.547012, 0), Vector(-3.937911, 36.757781, 0), Vector(-4.018153, 36.906989, 0), Vector(-4.058929, 36.982811, 0)], [4, 1, 1, 1, 1, 1, 1, 1, 1, 1, 1, 1, 1, 1, 1, 1, 4], [0, 1.101036621, 2.165113118, 3.196701619, 4.206636599, 5.185419256, 6.153861669, 7.113904655, 8.055726016, 9.002740657, 9.947572133, 10.903573382, 11.880673289, 12.867074579, 13.884141148, 14.924792093, 16], False, 3, [1, 1, 1, 1, 1, 1, 1, 1, 1, 1, 1, 1, 1, 1, 1, 1, 1, 1, 1], False),  # 31
    Part.BSplineCurve([Vector(3.005114, 40.923783, 0), Vector(3.002339, 40.689649, 0), Vector(2.996957, 40.235687, 0), Vector(2.950337, 39.577568, 0), Vector(2.874391, 38.964258, 0), Vector(2.767629, 38.396175, 0), Vector(2.629272, 37.872933, 0), Vector(2.460736, 37.394587, 0), Vector(2.259755, 36.961415, 0), Vector(2.02879, 36.57264, 0), Vector(1.764409, 36.230768, 0), Vector(1.472001, 35.931152, 0), Vector(1.144299, 35.68098, 0), Vector(0.786842, 35.474256, 0), Vector(0.397494, 35.316452, 0), Vector(-0.021215, 35.201955, 0), Vector(-0.471336, 35.134226, 0), Vector(-0.781946, 35.125698, 0), Vector(-0.941645, 35.121314, 0)], [4, 1, 1, 1, 1, 1, 1, 1, 1, 1, 1, 1, 1, 1, 1, 1, 4], [0, 1.410768719, 2.735344897, 3.97339736, 5.133070797, 6.215826799, 7.231830758, 8.185260544, 9.089012029, 9.950857309, 10.783804673, 11.604540534, 12.427350082, 13.264917127, 14.128798245, 15.03792469, 16], False, 3, [1, 1, 1, 1, 1, 1, 1, 1, 1, 1, 1, 1, 1, 1, 1, 1, 1, 1, 1], False),  # 32
    Part.BSplineCurve([Vector(2.140917, 43.988984, 0), Vector(2.210306, 43.881423, 0), Vector(2.349107, 43.666269, 0), Vector(2.524236, 43.322277, 0), Vector(2.672947, 42.96293, 0), Vector(2.794871, 42.586908, 0), Vector(2.889332, 42.194105, 0), Vector(2.95606, 41.784676, 0), Vector(2.997679, 41.359317, 0), Vector(3.00261, 41.070485, 0), Vector(3.005114, 40.923783, 0)], [4, 1, 1, 1, 1, 1, 1, 1, 4], [0, 0.949659157, 1.899606148, 2.860462492, 3.834038165, 4.83079677, 5.856383007, 6.911229405, 8], False, 3, [1, 1, 1, 1, 1, 1, 1, 1, 1, 1, 1], False),  # 33
    Part.BSplineCurve([Vector(-0.741028, 45.491684, 0), Vector(-0.590259, 45.487637, 0), Vector(-0.295305, 45.479719, 0), Vector(0.133344, 45.40612, 0), Vector(0.536086, 45.289162, 0), Vector(0.91201, 45.123367, 0), Vector(1.262844, 44.911534, 0), Vector(1.585864, 44.650357, 0), Vector(1.885284, 44.343994, 0), Vector(2.054469, 44.109038, 0), Vector(2.140917, 43.988984, 0)], [4, 1, 1, 1, 1, 1, 1, 1, 4], [0, 1.065421073, 2.084317927, 3.065587267, 4.024520138, 4.981370049, 5.954971245, 6.955055573, 8], False, 3, [1, 1, 1, 1, 1, 1, 1, 1, 1, 1, 1], False),  # 34
    Part.BSplineCurve([Vector(-3.831306, 43.805728, 0), Vector(-3.783788, 43.874399, 0), Vector(-3.69015, 44.009725, 0), Vector(-3.53919, 44.201371, 0), Vector(-3.380994, 44.378813, 0), Vector(-3.216221, 44.543103, 0), Vector(-3.046682, 44.6964, 0), Vector(-2.869681, 44.835407, 0), Vector(-2.684047, 44.958989, 0), Vector(-2.495105, 45.072902, 0), Vector(-2.298449, 45.172219, 0), Vector(-2.09494, 45.256555, 0), Vector(-1.885557, 45.330904, 0), Vector(-1.668297, 45.387407, 0), Vector(-1.445811, 45.435039, 0), Vector(-1.216214, 45.466271, 0), Vector(-0.980701, 45.489548, 0), Vector(-0.821464, 45.490967, 0), Vector(-0.741028, 45.491684, 0)], [4, 1, 1, 1, 1, 1, 1, 1, 1, 1, 1, 1, 1, 1, 1, 1, 4], [0, 1.089001194, 2.146014127, 3.179577203, 4.187716666, 5.179502559, 6.159265929, 7.119926927, 8.086463806, 9.035375073, 9.990160863, 10.958261042, 11.930674461, 12.915914311, 13.924053774, 14.951371286, 16], False, 3, [1, 1, 1, 1, 1, 1, 1, 1, 1, 1, 1, 1, 1, 1, 1, 1, 1, 1, 1], False),  # 35
    Part.BSplineCurve([Vector(-4.772664, 40.53991, 0), Vector(-4.769644, 40.693053, 0), Vector(-4.763692, 40.994845, 0), Vector(-4.718261, 41.439621, 0), Vector(-4.644812, 41.870131, 0), Vector(-4.543564, 42.287192, 0), Vector(-4.409808, 42.689438, 0), Vector(-4.246726, 43.07667, 0), Vector(-4.056619, 43.451013, 0), Vector(-3.906553, 43.687264, 0), Vector(-3.831306, 43.805728, 0)], [4, 1, 1, 1, 1, 1, 1, 1, 4], [0, 1.065446396, 2.099630748, 3.107335507, 4.102416534, 5.082906438, 6.053454268, 7.02394022, 8], False, 3, [1, 1, 1, 1, 1, 1, 1, 1, 1, 1, 1], False),  # 36
    Part.BSplineCurve([Vector(-4.058929, 36.982811, 0), Vector(-4.116838, 37.100897, 0), Vector(-4.234722, 37.341283, 0), Vector(-4.377578, 37.725387, 0), Vector(-4.499264, 38.134115, 0), Vector(-4.598178, 38.567335, 0), Vector(-4.678151, 39.024972, 0), Vector(-4.732973, 39.507423, 0), Vector(-4.765899, 40.015398, 0), Vector(-4.770374, 40.36239, 0), Vector(-4.772664, 40.53991, 0)], [4, 1, 1, 1, 1, 1, 1, 1, 4], [0, 0.86163265, 1.754002121, 2.682094637, 3.655395029, 4.66495959, 5.72569639, 6.83647195, 8], False, 3, [1, 1, 1, 1, 1, 1, 1, 1, 1, 1, 1], False),  # 37
    Part.BSplineCurve([Vector(1.153262, 40.69616, 0), Vector(1.151967, 40.820308, 0), Vector(1.149461, 41.060475, 0), Vector(1.125, 41.408581, 0), Vector(1.090691, 41.733598, 0), Vector(1.035611, 42.034061, 0), Vector(0.970375, 42.311618, 0), Vector(0.884146, 42.563154, 0), Vector(0.787224, 42.792125, 0), Vector(0.672823, 42.996688, 0), Vector(0.542888, 43.17674, 0), Vector(0.400174, 43.336149, 0), Vector(0.238024, 43.467013, 0), Vector(0.062962, 43.577835, 0), Vector(-0.129718, 43.659783, 0), Vector(-0.336226, 43.719826, 0), Vector(-0.557678, 43.757655, 0), Vector(-0.710651, 43.761377, 0), Vector(-0.789253, 43.763289, 0)], [4, 1, 1, 1, 1, 1, 1, 1, 1, 1, 1, 1, 1, 1, 1, 1, 4], [0, 1.451310721, 2.807578068, 4.078675786, 5.270246053, 6.377072111, 7.408892681, 8.375345316, 9.280835355, 10.142571817, 10.967410406, 11.774095613, 12.57101741, 13.382488036, 14.212790549, 15.081679558, 16], False, 3, [1, 1, 1, 1, 1, 1, 1, 1, 1, 1, 1, 1, 1, 1, 1, 1, 1, 1, 1], False),  # 38
    Part.BSplineCurve([Vector(-0.984083, 36.849709, 0), Vector(-0.897731, 36.852704, 0), Vector(-0.728987, 36.858556, 0), Vector(-0.484104, 36.903358, 0), Vector(-0.255805, 36.978611, 0), Vector(-0.04549, 37.085992, 0), Vector(0.147379, 37.223147, 0), Vector(0.324832, 37.388408, 0), Vector(0.483288, 37.586239, 0), Vector(0.626461, 37.813237, 0), Vector(0.75114, 38.071189, 0), Vector(0.858244, 38.358365, 0), Vector(0.951449, 38.674648, 0), Vector(1.025072, 39.021121, 0), Vector(1.082478, 39.397995, 0), Vector(1.124373, 39.80417, 0), Vector(1.149591, 40.24059, 0), Vector(1.152013, 40.541161, 0), Vector(1.153262, 40.69616, 0)], [4, 1, 1, 1, 1, 1, 1, 1, 1, 1, 1, 1, 1, 1, 1, 1, 4], [0, 0.839850773, 1.641183446, 2.412778331, 3.171043049, 3.929617431, 4.708684097, 5.522617875, 6.388740024, 7.314899046, 8.304914321, 9.368005926, 10.520288666, 11.748457435, 13.075714715, 14.491999149, 16], False, 3, [1, 1, 1, 1, 1, 1, 1, 1, 1, 1, 1, 1, 1, 1, 1, 1, 1, 1, 1], False),  # 39
    Part.BSplineCurve([Vector(-2.745272, 38.219308, 0), Vector(-2.703535, 38.111394, 0), Vector(-2.623124, 37.903483, 0), Vector(-2.464439, 37.621684, 0), Vector(-2.280514, 37.382931, 0), Vector(-2.070364, 37.187229, 0), Vector(-1.834458, 37.035378, 0), Vector(-1.573144, 36.925231, 0), Vector(-1.286155, 36.86116, 0), Vector(-1.086645, 36.853597, 0), Vector(-0.984083, 36.849709, 0)], [4, 1, 1, 1, 1, 1, 1, 1, 4], [0, 1.155090394, 2.225436224, 3.218966621, 4.155622191, 5.080634948, 6.007876656, 6.975918764, 8], False, 3, [1, 1, 1, 1, 1, 1, 1, 1, 1, 1, 1], False),  # 40
    Part.BSplineCurve([Vector(-3.044269, 40.638289, 0), Vector(-3.043959, 40.510953, 0), Vector(-3.043357, 40.263892, 0), Vector(-3.026456, 39.90503, 0), Vector(-3.004508, 39.569127, 0), Vector(-2.972048, 39.255683, 0), Vector(-2.929033, 38.964384, 0), Vector(-2.881054, 38.694608, 0), Vector(-2.818897, 38.448201, 0), Vector(-2.769189, 38.293665, 0), Vector(-2.745272, 38.219308, 0)], [4, 1, 1, 1, 1, 1, 1, 1, 4], [0, 1.24838878, 2.422141985, 3.521760686, 4.548725799, 5.510782421, 6.408528782, 7.23424831, 8], False, 3, [1, 1, 1, 1, 1, 1, 1, 1, 1, 1, 1], False),  # 41
    Part.BSplineCurve([Vector(-2.482926, 42.72741, 0), Vector(-2.527895, 42.651566, 0), Vector(-2.617919, 42.499733, 0), Vector(-2.73057, 42.2597, 0), Vector(-2.827925, 42.011813, 0), Vector(-2.907001, 41.754469, 0), Vector(-2.968327, 41.488175, 0), Vector(-3.013416, 41.213142, 0), Vector(-3.03784, 40.928728, 0), Vector(-3.042104, 40.736068, 0), Vector(-3.044269, 40.638289, 0)], [4, 1, 1, 1, 1, 1, 1, 1, 4], [0, 0.965078813, 1.932005355, 2.899623887, 3.879614671, 4.877106227, 5.890011682, 6.929132817, 8], False, 3, [1, 1, 1, 1, 1, 1, 1, 1, 1, 1, 1], False),  # 42
    Part.BSplineCurve([Vector(-0.789253, 43.763289, 0), Vector(-0.875042, 43.760764, 0), Vector(-1.044298, 43.75578, 0), Vector(-1.290746, 43.703025, 0), Vector(-1.524306, 43.621882, 0), Vector(-1.745637, 43.509296, 0), Vector(-1.950559, 43.359668, 0), Vector(-2.144804, 43.18112, 0), Vector(-2.325638, 42.969309, 0), Vector(-2.429413, 42.809709, 0), Vector(-2.482926, 42.72741, 0)], [4, 1, 1, 1, 1, 1, 1, 1, 4], [0, 0.987720428, 1.948707218, 2.891188167, 3.832764918, 4.799652197, 5.806957348, 6.869123932, 8], False, 3, [1, 1, 1, 1, 1, 1, 1, 1, 1, 1, 1], False),  # 43
], False)
sketch3.addConstraint([
    Sketcher.Constraint("Block", 0),
    Sketcher.Constraint("Block", 1),
    Sketcher.Constraint("Block", 2),
    Sketcher.Constraint("Block", 3),
    Sketcher.Constraint("Block", 4),
    Sketcher.Constraint("Block", 5),
    Sketcher.Constraint("Block", 6),
    Sketcher.Constraint("Block", 8),
    Sketcher.Constraint("Block", 9),
    Sketcher.Constraint("Block", 10),
    Sketcher.Constraint("Block", 11),
    Sketcher.Constraint("Block", 13),
    Sketcher.Constraint("Block", 14),
    Sketcher.Constraint("Block", 15),
    Sketcher.Constraint("Block", 16),
    Sketcher.Constraint("Block", 17),
    Sketcher.Constraint("Block", 18),
    Sketcher.Constraint("Block", 19),
    Sketcher.Constraint("Block", 20),
    Sketcher.Constraint("Block", 21),
    Sketcher.Constraint("Block", 22),
    Sketcher.Constraint("Block", 23),
    Sketcher.Constraint("Block", 24),
    Sketcher.Constraint("Block", 25),
    Sketcher.Constraint("Block", 26),
    Sketcher.Constraint("Block", 27),
    Sketcher.Constraint("Block", 28),
    Sketcher.Constraint("Block", 29),
    Sketcher.Constraint("Block", 30),
    Sketcher.Constraint("Block", 31),
    Sketcher.Constraint("Block", 32),
    Sketcher.Constraint("Block", 33),
    Sketcher.Constraint("Block", 34),
    Sketcher.Constraint("Block", 35),
    Sketcher.Constraint("Block", 36),
    Sketcher.Constraint("Block", 37),
    Sketcher.Constraint("Block", 38),
    Sketcher.Constraint("Block", 39),
    Sketcher.Constraint("Block", 40),
    Sketcher.Constraint("Block", 41),
    Sketcher.Constraint("Block", 42),
    Sketcher.Constraint("Block", 43),
    Sketcher.Constraint("Coincident", 6, 1, 7, 1),
    Sketcher.Constraint("Coincident", 7, 2, 8, 2),
    Sketcher.Constraint("Coincident", 11, 1, 12, 1),
    Sketcher.Constraint("Coincident", 12, 2, 13, 2),
])
pocket1 = body.newObject("PartDesign::Pocket", "Pocket")
pocket1.Profile = sketch3
pocket1.Length = 0.5
doc.recompute()

fillet = body.newObject("PartDesign::Fillet", "Fillet")
fillet.Base = (pocket1, edges_at(pocket1, [(-5.409, 0, 29.207), (-5.409, 2, 29.207)]))
fillet.Radius = 0.5

doc.recompute()
